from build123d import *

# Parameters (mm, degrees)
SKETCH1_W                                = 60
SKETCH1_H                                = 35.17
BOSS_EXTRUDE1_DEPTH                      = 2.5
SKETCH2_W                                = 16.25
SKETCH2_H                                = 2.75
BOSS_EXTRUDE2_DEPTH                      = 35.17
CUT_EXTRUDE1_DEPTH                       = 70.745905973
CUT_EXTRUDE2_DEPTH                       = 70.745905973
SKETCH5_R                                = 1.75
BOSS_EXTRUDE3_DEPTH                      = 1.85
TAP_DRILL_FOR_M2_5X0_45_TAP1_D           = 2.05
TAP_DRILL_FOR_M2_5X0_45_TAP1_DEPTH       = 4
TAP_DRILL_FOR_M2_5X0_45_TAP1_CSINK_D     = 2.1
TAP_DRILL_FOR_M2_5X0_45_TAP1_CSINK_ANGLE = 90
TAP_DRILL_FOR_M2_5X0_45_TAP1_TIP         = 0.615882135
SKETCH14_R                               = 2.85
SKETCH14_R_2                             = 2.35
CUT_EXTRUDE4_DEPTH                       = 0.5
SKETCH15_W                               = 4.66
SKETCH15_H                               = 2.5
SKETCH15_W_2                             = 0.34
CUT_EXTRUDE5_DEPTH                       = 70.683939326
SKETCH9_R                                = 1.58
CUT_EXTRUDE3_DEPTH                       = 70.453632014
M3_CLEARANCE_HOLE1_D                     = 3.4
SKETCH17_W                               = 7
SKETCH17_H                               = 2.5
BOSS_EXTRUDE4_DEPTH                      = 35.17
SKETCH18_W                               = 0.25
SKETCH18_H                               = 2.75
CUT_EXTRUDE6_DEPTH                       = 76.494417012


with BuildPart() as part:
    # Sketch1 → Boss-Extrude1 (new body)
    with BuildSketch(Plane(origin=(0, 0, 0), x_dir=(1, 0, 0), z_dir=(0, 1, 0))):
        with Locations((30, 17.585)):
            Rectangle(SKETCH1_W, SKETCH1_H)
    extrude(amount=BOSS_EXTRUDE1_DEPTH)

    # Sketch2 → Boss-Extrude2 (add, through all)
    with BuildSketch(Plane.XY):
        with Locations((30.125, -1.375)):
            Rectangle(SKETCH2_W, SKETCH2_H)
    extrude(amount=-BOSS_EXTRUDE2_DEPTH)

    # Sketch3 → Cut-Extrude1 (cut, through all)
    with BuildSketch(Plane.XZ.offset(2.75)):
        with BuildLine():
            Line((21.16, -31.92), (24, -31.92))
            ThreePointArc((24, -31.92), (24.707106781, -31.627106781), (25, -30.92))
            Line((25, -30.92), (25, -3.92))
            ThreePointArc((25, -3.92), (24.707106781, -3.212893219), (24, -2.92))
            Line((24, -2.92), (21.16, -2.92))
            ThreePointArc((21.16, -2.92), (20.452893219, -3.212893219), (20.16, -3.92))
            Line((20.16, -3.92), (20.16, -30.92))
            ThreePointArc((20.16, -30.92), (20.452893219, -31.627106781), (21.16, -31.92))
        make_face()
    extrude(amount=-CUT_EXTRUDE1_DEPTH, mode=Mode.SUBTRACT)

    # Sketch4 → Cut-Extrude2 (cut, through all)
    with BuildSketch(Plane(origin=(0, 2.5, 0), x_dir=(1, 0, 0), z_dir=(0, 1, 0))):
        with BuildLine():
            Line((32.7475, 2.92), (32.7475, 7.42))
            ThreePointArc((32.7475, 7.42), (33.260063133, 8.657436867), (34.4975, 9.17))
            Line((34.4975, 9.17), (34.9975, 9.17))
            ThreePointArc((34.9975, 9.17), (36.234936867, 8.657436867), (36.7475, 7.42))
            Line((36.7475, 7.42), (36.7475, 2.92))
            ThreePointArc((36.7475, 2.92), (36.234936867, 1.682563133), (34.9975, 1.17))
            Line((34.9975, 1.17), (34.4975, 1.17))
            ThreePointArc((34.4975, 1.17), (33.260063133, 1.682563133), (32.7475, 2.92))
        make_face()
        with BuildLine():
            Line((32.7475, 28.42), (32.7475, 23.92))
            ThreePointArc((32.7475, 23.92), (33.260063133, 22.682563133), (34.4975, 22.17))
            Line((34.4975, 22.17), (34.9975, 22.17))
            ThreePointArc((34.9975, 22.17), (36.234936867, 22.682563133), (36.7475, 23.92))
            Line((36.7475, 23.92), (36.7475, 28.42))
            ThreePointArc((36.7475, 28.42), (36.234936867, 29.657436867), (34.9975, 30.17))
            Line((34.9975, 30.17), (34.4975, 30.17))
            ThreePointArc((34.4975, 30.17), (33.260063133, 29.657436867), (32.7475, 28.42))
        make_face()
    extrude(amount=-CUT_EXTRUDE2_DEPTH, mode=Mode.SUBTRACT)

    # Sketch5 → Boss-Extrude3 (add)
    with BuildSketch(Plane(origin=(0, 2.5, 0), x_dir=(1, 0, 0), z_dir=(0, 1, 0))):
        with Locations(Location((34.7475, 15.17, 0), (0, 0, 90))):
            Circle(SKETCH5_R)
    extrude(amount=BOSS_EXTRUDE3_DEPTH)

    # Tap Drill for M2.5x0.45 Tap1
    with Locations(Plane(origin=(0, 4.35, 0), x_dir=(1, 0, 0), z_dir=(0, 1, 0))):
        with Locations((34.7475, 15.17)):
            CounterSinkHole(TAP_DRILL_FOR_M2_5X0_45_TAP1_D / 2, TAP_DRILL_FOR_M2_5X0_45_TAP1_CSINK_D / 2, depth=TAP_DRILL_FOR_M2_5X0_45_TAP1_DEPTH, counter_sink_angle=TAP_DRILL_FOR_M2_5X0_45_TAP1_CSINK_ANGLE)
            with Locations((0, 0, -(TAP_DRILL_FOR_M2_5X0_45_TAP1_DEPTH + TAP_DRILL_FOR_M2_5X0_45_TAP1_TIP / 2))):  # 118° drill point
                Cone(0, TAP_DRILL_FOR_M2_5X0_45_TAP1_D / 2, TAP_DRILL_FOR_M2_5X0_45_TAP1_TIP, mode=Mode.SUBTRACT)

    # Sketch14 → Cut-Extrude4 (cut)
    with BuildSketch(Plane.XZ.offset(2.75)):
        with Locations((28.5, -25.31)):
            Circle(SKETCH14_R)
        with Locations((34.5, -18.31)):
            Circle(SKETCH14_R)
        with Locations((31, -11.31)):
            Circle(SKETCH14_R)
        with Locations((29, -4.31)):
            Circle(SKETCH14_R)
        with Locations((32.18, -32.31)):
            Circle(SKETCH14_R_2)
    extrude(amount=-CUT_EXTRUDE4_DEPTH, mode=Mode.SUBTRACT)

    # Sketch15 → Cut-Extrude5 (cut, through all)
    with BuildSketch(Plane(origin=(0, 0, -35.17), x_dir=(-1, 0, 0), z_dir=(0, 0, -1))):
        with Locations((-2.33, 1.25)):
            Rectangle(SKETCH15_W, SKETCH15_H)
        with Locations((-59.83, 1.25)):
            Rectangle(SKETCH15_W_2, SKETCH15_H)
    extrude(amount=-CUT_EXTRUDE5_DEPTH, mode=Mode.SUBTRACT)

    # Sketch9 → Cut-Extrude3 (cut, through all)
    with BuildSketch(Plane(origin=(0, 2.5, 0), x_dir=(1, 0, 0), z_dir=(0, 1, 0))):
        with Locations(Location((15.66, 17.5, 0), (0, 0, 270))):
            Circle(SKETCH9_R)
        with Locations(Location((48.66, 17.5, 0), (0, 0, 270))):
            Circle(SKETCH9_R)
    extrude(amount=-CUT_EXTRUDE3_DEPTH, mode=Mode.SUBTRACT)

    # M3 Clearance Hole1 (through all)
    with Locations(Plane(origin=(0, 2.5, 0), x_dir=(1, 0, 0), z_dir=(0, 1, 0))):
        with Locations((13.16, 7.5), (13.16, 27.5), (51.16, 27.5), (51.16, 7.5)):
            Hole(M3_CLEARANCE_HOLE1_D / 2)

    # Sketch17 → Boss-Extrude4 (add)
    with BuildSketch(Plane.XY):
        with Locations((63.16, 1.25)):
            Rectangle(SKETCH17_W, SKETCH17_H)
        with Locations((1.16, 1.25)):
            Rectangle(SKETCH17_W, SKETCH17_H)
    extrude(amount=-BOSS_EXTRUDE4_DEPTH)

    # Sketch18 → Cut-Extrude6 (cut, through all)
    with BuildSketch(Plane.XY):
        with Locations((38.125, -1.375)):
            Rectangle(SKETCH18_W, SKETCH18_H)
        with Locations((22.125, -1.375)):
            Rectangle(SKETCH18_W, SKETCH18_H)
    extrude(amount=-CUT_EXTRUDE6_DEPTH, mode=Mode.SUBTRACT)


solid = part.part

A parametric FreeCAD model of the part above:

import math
import FreeCAD as App
import Part
import Sketcher
from FreeCAD import Vector

doc = App.newDocument("Part")
body = doc.addObject("PartDesign::Body", "Body")

sketch1 = body.newObject("Sketcher::SketchObject", "Sketch")
sketch1.AttachmentSupport = (doc.getObject("XZ_Plane"), [""])
sketch1.MapMode = "FlatFace"
sketch1.addGeometry([
    Part.LineSegment(Vector(0, -35.17, 0), Vector(0, 0, 0)),
    Part.LineSegment(Vector(0, 0, 0), Vector(60, 0, 0)),
    Part.LineSegment(Vector(60, 0, 0), Vector(60, -35.17, 0)),
    Part.LineSegment(Vector(60, -35.17, 0), Vector(0, -35.17, 0)),
], False)
sketch1.addConstraint([
    Sketcher.Constraint("Coincident", 0, 2, 1, 1),
    Sketcher.Constraint("Coincident", 1, 2, 2, 1),
    Sketcher.Constraint("Coincident", 2, 2, 3, 1),
    Sketcher.Constraint("Coincident", 3, 2, 0, 1),
    Sketcher.Constraint("Vertical", 0),
    Sketcher.Constraint("Horizontal", 1),
    Sketcher.Constraint("Vertical", 2),
    Sketcher.Constraint("Horizontal", 3),
    Sketcher.Constraint("Coincident", 0, 2, -1, 1),
    Sketcher.Constraint("DistanceX", 1, 1, 1, 2, 60.0),
    Sketcher.Constraint("DistanceY", 0, 1, 0, 2, 35.17),
])
pad1 = body.newObject("PartDesign::Pad", "Pad")
pad1.Profile = sketch1
pad1.Length = 2.5
pad1.Reversed = True

sketch2 = body.newObject("Sketcher::SketchObject", "Sketch001")
sketch2.AttachmentSupport = (doc.getObject("XY_Plane"), [""])
sketch2.MapMode = "FlatFace"
sketch2.addGeometry([
    Part.LineSegment(Vector(22, 0, 0), Vector(22, -2.75, 0)),
    Part.LineSegment(Vector(22, -2.75, 0), Vector(38.25, -2.75, 0)),
    Part.LineSegment(Vector(38.25, -2.75, 0), Vector(38.25, 0, 0)),
    Part.LineSegment(Vector(38.25, 0, 0), Vector(22, 0, 0)),
], False)
sketch2.addConstraint([
    Sketcher.Constraint("Coincident", 0, 2, 1, 1),
    Sketcher.Constraint("Coincident", 1, 2, 2, 1),
    Sketcher.Constraint("Coincident", 2, 2, 3, 1),
    Sketcher.Constraint("Coincident", 3, 2, 0, 1),
    Sketcher.Constraint("Vertical", 0),
    Sketcher.Constraint("Horizontal", 1),
    Sketcher.Constraint("Vertical", 2),
    Sketcher.Constraint("Horizontal", 3),
    Sketcher.Constraint("PointOnObject", 2, 2, -1),
    Sketcher.Constraint("DistanceX", -1, 1, 0, 2, 22.0),
    Sketcher.Constraint("DistanceX", 1, 1, 1, 2, 16.25),
    Sketcher.Constraint("DistanceY", 0, 2, 0, 1, 2.75),
])
pad2 = body.newObject("PartDesign::Pad", "Pad001")
pad2.Profile = sketch2
pad2.Length = 35.17
pad2.Reversed = True

sketch3 = body.newObject("Sketcher::SketchObject", "Sketch002")
sketch3.AttachmentSupport = (doc.getObject("XZ_Plane"), [""])
sketch3.MapMode = "FlatFace"
sketch3.AttachmentOffset = App.Placement(Vector(0, 0, 2.75), App.Rotation())
sketch3.addGeometry([
    Part.LineSegment(Vector(21.16, -31.92, 0), Vector(24, -31.92, 0)),
    Part.ArcOfCircle(Part.Circle(Vector(24, -30.92, 0), Vector(0, 0, 1), 1), math.radians(-90), math.radians(0)),
    Part.LineSegment(Vector(25, -30.92, 0), Vector(25, -3.92, 0)),
    Part.ArcOfCircle(Part.Circle(Vector(24, -3.92, 0), Vector(0, 0, 1), 1), math.radians(0), math.radians(90)),
    Part.LineSegment(Vector(24, -2.92, 0), Vector(21.16, -2.92, 0)),
    Part.ArcOfCircle(Part.Circle(Vector(21.16, -3.92, 0), Vector(0, 0, 1), 1), math.radians(90), math.radians(180)),
    Part.LineSegment(Vector(20.16, -3.92, 0), Vector(20.16, -30.92, 0)),
    Part.ArcOfCircle(Part.Circle(Vector(21.16, -30.92, 0), Vector(0, 0, 1), 1), math.radians(-180), math.radians(-90)),
], False)
sketch3.addConstraint([
    Sketcher.Constraint("Tangent", 0, 2, 1, 1),
    Sketcher.Constraint("Tangent", 1, 2, 2, 1),
    Sketcher.Constraint("Tangent", 2, 2, 3, 1),
    Sketcher.Constraint("Tangent", 3, 2, 4, 1),
    Sketcher.Constraint("Tangent", 4, 2, 5, 1),
    Sketcher.Constraint("Tangent", 5, 2, 6, 1),
    Sketcher.Constraint("Tangent", 6, 2, 7, 1),
    Sketcher.Constraint("Tangent", 7, 2, 0, 1),
    Sketcher.Constraint("Horizontal", 0),
    Sketcher.Constraint("Vertical", 2),
    Sketcher.Constraint("Horizontal", 4),
    Sketcher.Constraint("Vertical", 6),
    Sketcher.Constraint("Equal", 1, 3),
    Sketcher.Constraint("Equal", 3, 5),
    Sketcher.Constraint("Equal", 5, 7),
    Sketcher.Constraint("Radius", 1, 1.0),
    Sketcher.Constraint("DistanceY", 2, 1, 2, 2, 27.0),
    Sketcher.Constraint("DistanceX", -1, 1, 1, 3, 24.0),
    Sketcher.Constraint("DistanceX", 0, 1, 0, 2, 2.84),
    Sketcher.Constraint("DistanceY", 1, 3, -1, 1, 30.92),
])
pocket1 = body.newObject("PartDesign::Pocket", "Pocket")
pocket1.Profile = sketch3
pocket1.Type = "ThroughAll"

sketch4 = body.newObject("Sketcher::SketchObject", "Sketch003")
sketch4.AttachmentSupport = (doc.getObject("XZ_Plane"), [""])
sketch4.MapMode = "FlatFace"
sketch4.AttachmentOffset = App.Placement(Vector(0, 0, -2.5), App.Rotation())
sketch4.addGeometry([
    Part.LineSegment(Vector(32.7475, -7.42, 0), Vector(32.7475, -2.92, 0)),
    Part.ArcOfCircle(Part.Circle(Vector(34.4975, -2.92, 0), Vector(0, 0, 1), 1.75), math.radians(90), math.radians(180)),
    Part.LineSegment(Vector(34.4975, -1.17, 0), Vector(34.9975, -1.17, 0)),
    Part.ArcOfCircle(Part.Circle(Vector(34.9975, -2.92, 0), Vector(0, 0, 1), 1.75), math.radians(0), math.radians(90)),
    Part.LineSegment(Vector(36.7475, -2.92, 0), Vector(36.7475, -7.42, 0)),
    Part.ArcOfCircle(Part.Circle(Vector(34.9975, -7.42, 0), Vector(0, 0, 1), 1.75), math.radians(-90), math.radians(0)),
    Part.LineSegment(Vector(34.9975, -9.17, 0), Vector(34.4975, -9.17, 0)),
    Part.ArcOfCircle(Part.Circle(Vector(34.4975, -7.42, 0), Vector(0, 0, 1), 1.75), math.radians(180), math.radians(270)),
    Part.LineSegment(Vector(32.7475, -28.42, 0), Vector(32.7475, -23.92, 0)),
    Part.ArcOfCircle(Part.Circle(Vector(34.4975, -23.92, 0), Vector(0, 0, 1), 1.75), math.radians(90), math.radians(180)),
    Part.LineSegment(Vector(34.4975, -22.17, 0), Vector(34.9975, -22.17, 0)),
    Part.ArcOfCircle(Part.Circle(Vector(34.9975, -23.92, 0), Vector(0, 0, 1), 1.75), math.radians(0), math.radians(90)),
    Part.LineSegment(Vector(36.7475, -23.92, 0), Vector(36.7475, -28.42, 0)),
    Part.ArcOfCircle(Part.Circle(Vector(34.9975, -28.42, 0), Vector(0, 0, 1), 1.75), math.radians(-90), math.radians(0)),
    Part.LineSegment(Vector(34.9975, -30.17, 0), Vector(34.4975, -30.17, 0)),
    Part.ArcOfCircle(Part.Circle(Vector(34.4975, -28.42, 0), Vector(0, 0, 1), 1.75), math.radians(180), math.radians(270)),
], False)
sketch4.addConstraint([
    Sketcher.Constraint("Tangent", 0, 2, 1, 2),
    Sketcher.Constraint("Tangent", 1, 1, 2, 1),
    Sketcher.Constraint("Tangent", 2, 2, 3, 2),
    Sketcher.Constraint("Tangent", 3, 1, 4, 1),
    Sketcher.Constraint("Tangent", 4, 2, 5, 2),
    Sketcher.Constraint("Tangent", 5, 1, 6, 1),
    Sketcher.Constraint("Tangent", 6, 2, 7, 2),
    Sketcher.Constraint("Tangent", 7, 1, 0, 1),
    Sketcher.Constraint("Tangent", 8, 2, 9, 2),
    Sketcher.Constraint("Tangent", 9, 1, 10, 1),
    Sketcher.Constraint("Tangent", 10, 2, 11, 2),
    Sketcher.Constraint("Tangent", 11, 1, 12, 1),
    Sketcher.Constraint("Tangent", 12, 2, 13, 2),
    Sketcher.Constraint("Tangent", 13, 1, 14, 1),
    Sketcher.Constraint("Tangent", 14, 2, 15, 2),
    Sketcher.Constraint("Tangent", 15, 1, 8, 1),
    Sketcher.Constraint("Vertical", 0),
    Sketcher.Constraint("Horizontal", 2),
    Sketcher.Constraint("Vertical", 4),
    Sketcher.Constraint("Horizontal", 6),
    Sketcher.Constraint("Vertical", 8),
    Sketcher.Constraint("Horizontal", 10),
    Sketcher.Constraint("Vertical", 12),
    Sketcher.Constraint("Horizontal", 14),
    Sketcher.Constraint("Equal", 1, 3),
    Sketcher.Constraint("Equal", 3, 5),
    Sketcher.Constraint("Equal", 5, 7),
    Sketcher.Constraint("Equal", 7, 9),
    Sketcher.Constraint("Equal", 9, 11),
    Sketcher.Constraint("Equal", 11, 13),
    Sketcher.Constraint("Equal", 13, 15),
    Sketcher.Constraint("Vertical", 7, 3, 9, 3),
    Sketcher.Constraint("Vertical", 5, 3, 11, 3),
    Sketcher.Constraint("Equal", 4, 8),
    Sketcher.Constraint("Radius", 1, 1.75),
    Sketcher.Constraint("DistanceX", 2, 1, 2, 2, 0.5),
    Sketcher.Constraint("DistanceY", 0, 1, 0, 2, 4.5),
    Sketcher.Constraint("DistanceY", 9, 3, 1, 3, 21.0),
    Sketcher.Constraint("DistanceY", 1, 3, -1, 1, 2.92),
    Sketcher.Constraint("DistanceX", -1, 1, 1, 3, 34.4975),
])
pocket2 = body.newObject("PartDesign::Pocket", "Pocket001")
pocket2.Profile = sketch4
pocket2.Type = "ThroughAll"
pocket2.Reversed = True

sketch5 = body.newObject("Sketcher::SketchObject", "Sketch004")
sketch5.AttachmentSupport = (doc.getObject("XZ_Plane"), [""])
sketch5.MapMode = "FlatFace"
sketch5.AttachmentOffset = App.Placement(Vector(0, 0, -2.5), App.Rotation())
sketch5.addGeometry(Part.Circle(Vector(34.7475, -15.17, 0), Vector(0, 0, 1), 1.75), False)
sketch5.addConstraint([
    Sketcher.Constraint("Diameter", 0, 3.5),
    Sketcher.Constraint("DistanceY", 0, 3, -1, 1, 15.17),
    Sketcher.Constraint("DistanceX", -1, 1, 0, 3, 34.7475),
])
pad3 = body.newObject("PartDesign::Pad", "Pad002")
pad3.Profile = sketch5
pad3.Length = 1.85
pad3.Reversed = True

sketch6 = body.newObject("Sketcher::SketchObject", "Sketch005")
sketch6.AttachmentSupport = (doc.getObject("XZ_Plane"), [""])
sketch6.MapMode = "FlatFace"
sketch6.AttachmentOffset = App.Placement(Vector(0, 0, -4.35), App.Rotation())
sketch6.addGeometry(Part.Circle(Vector(34.7475, -15.17, 0), Vector(0, 0, 1), 1.025), False)
sketch6.addConstraint([
    Sketcher.Constraint("Diameter", 0, 2.05),
    Sketcher.Constraint("DistanceY", 0, 3, -1, 1, 15.17),
    Sketcher.Constraint("DistanceX", -1, 1, 0, 3, 34.7475),
])
doc.recompute()
hole = body.newObject("PartDesign::Hole", "Hole")
hole.Profile = sketch6
hole.ThreadType = "None"
hole.Diameter = 2.05
hole.DepthType = "Dimension"
hole.Depth = 4
hole.DrillPoint = "Angled"
hole.DrillPointAngle = 118
hole.HoleCutType = "Countersink"
hole.HoleCutDiameter = 2.1
hole.HoleCutCountersinkAngle = 90
hole.Reversed = True

sketch7 = body.newObject("Sketcher::SketchObject", "Sketch006")
sketch7.AttachmentSupport = (doc.getObject("XZ_Plane"), [""])
sketch7.MapMode = "FlatFace"
sketch7.AttachmentOffset = App.Placement(Vector(0, 0, 2.75), App.Rotation())
sketch7.addGeometry([
    Part.Circle(Vector(28.5, -25.31, 0), Vector(0, 0, 1), 2.85),
    Part.Circle(Vector(34.5, -18.31, 0), Vector(0, 0, 1), 2.85),
    Part.Circle(Vector(31, -11.31, 0), Vector(0, 0, 1), 2.85),
    Part.Circle(Vector(29, -4.31, 0), Vector(0, 0, 1), 2.85),
    Part.Circle(Vector(32.18, -32.31, 0), Vector(0, 0, 1), 2.35),
], False)
sketch7.addConstraint([
    Sketcher.Constraint("Equal", 0, 1),
    Sketcher.Constraint("Equal", 1, 2),
    Sketcher.Constraint("Equal", 2, 3),
    Sketcher.Constraint("Diameter", 0, 5.7),
    Sketcher.Constraint("Diameter", 4, 4.7),
    Sketcher.Constraint("DistanceX", -1, 1, 2, 3, 31.0),
    Sketcher.Constraint("DistanceX", -1, 1, 3, 3, 29.0),
    Sketcher.Constraint("DistanceX", 0, 3, 1, 3, 6.0),
    Sketcher.Constraint("DistanceY", 0, 3, 1, 3, 7.0),
    Sketcher.Constraint("DistanceY", 1, 3, 2, 3, 7.0),
    Sketcher.Constraint("DistanceY", 2, 3, 3, 3, 7.0),
    Sketcher.Constraint("DistanceY", 4, 3, 0, 3, 7.0),
    Sketcher.Constraint("DistanceX", -1, 1, 0, 3, 28.5),
    Sketcher.Constraint("DistanceY", 0, 3, -1, 1, 25.31),
    Sketcher.Constraint("DistanceX", -1, 1, 4, 3, 32.18),
])
pocket3 = body.newObject("PartDesign::Pocket", "Pocket002")
pocket3.Profile = sketch7
pocket3.Length = 0.5

sketch8 = body.newObject("Sketcher::SketchObject", "Sketch007")
sketch8.AttachmentSupport = (doc.getObject("XY_Plane"), [""])
sketch8.MapMode = "FlatFace"
sketch8.AttachmentOffset = App.Placement(Vector(0, 0, -35.17), App.Rotation())
sketch8.addGeometry([
    Part.LineSegment(Vector(4.66, 2.5, 0), Vector(4.66, 0, 0)),
    Part.LineSegment(Vector(4.66, 0, 0), Vector(0, 0, 0)),
    Part.LineSegment(Vector(0, 0, 0), Vector(0, 2.5, 0)),
    Part.LineSegment(Vector(0, 2.5, 0), Vector(4.66, 2.5, 0)),
    Part.LineSegment(Vector(60, 2.5, 0), Vector(60, 0, 0)),
    Part.LineSegment(Vector(60, 0, 0), Vector(59.66, 0, 0)),
    Part.LineSegment(Vector(59.66, 0, 0), Vector(59.66, 2.5, 0)),
    Part.LineSegment(Vector(59.66, 2.5, 0), Vector(60, 2.5, 0)),
], False)
sketch8.addConstraint([
    Sketcher.Constraint("Coincident", 0, 2, 1, 1),
    Sketcher.Constraint("Coincident", 1, 2, 2, 1),
    Sketcher.Constraint("Coincident", 2, 2, 3, 1),
    Sketcher.Constraint("Coincident", 3, 2, 0, 1),
    Sketcher.Constraint("Coincident", 4, 2, 5, 1),
    Sketcher.Constraint("Coincident", 5, 2, 6, 1),
    Sketcher.Constraint("Coincident", 6, 2, 7, 1),
    Sketcher.Constraint("Coincident", 7, 2, 4, 1),
    Sketcher.Constraint("Vertical", 0),
    Sketcher.Constraint("Horizontal", 1),
    Sketcher.Constraint("Vertical", 2),
    Sketcher.Constraint("Horizontal", 3),
    Sketcher.Constraint("Vertical", 4),
    Sketcher.Constraint("Horizontal", 5),
    Sketcher.Constraint("Vertical", 6),
    Sketcher.Constraint("Horizontal", 7),
    Sketcher.Constraint("Coincident", 1, 2, -1, 1),
    Sketcher.Constraint("PointOnObject", 4, 2, -1),
    Sketcher.Constraint("Horizontal", 3, 2, 6, 2),
    Sketcher.Constraint("DistanceY", 0, 2, 0, 1, 2.5),
    Sketcher.Constraint("DistanceX", -1, 1, 4, 2, 60.0),
    Sketcher.Constraint("DistanceX", 0, 2, 5, 2, 55.0),
    Sketcher.Constraint("DistanceX", 1, 2, 1, 1, 4.66),
])
pocket4 = body.newObject("PartDesign::Pocket", "Pocket003")
pocket4.Profile = sketch8
pocket4.Type = "ThroughAll"
pocket4.Reversed = True

sketch9 = body.newObject("Sketcher::SketchObject", "Sketch008")
sketch9.AttachmentSupport = (doc.getObject("XZ_Plane"), [""])
sketch9.MapMode = "FlatFace"
sketch9.AttachmentOffset = App.Placement(Vector(0, 0, -2.5), App.Rotation())
sketch9.addGeometry([
    Part.Circle(Vector(15.66, -17.5, 0), Vector(0, 0, 1), 1.58),
    Part.Circle(Vector(48.66, -17.5, 0), Vector(0, 0, 1), 1.58),
], False)
sketch9.addConstraint([
    Sketcher.Constraint("Equal", 0, 1),
    Sketcher.Constraint("Horizontal", 0, 3, 1, 3),
    Sketcher.Constraint("Diameter", 0, 3.16),
    Sketcher.Constraint("DistanceX", 0, 3, 1, 3, 33.0),
    Sketcher.Constraint("DistanceY", 0, 3, -1, 1, 17.5),
    Sketcher.Constraint("DistanceX", -1, 1, 0, 3, 15.66),
])
pocket5 = body.newObject("PartDesign::Pocket", "Pocket004")
pocket5.Profile = sketch9
pocket5.Type = "ThroughAll"
pocket5.Reversed = True

sketch10 = body.newObject("Sketcher::SketchObject", "Sketch009")
sketch10.AttachmentSupport = (doc.getObject("XZ_Plane"), [""])
sketch10.MapMode = "FlatFace"
sketch10.AttachmentOffset = App.Placement(Vector(0, 0, -2.5), App.Rotation())
sketch10.addGeometry([
    Part.Circle(Vector(13.16, -7.5, 0), Vector(0, 0, 1), 1.7),
    Part.Circle(Vector(13.16, -27.5, 0), Vector(0, 0, 1), 1.7),
    Part.Circle(Vector(51.16, -27.5, 0), Vector(0, 0, 1), 1.7),
    Part.Circle(Vector(51.16, -7.5, 0), Vector(0, 0, 1), 1.7),
], False)
sketch10.addConstraint([
    Sketcher.Constraint("Equal", 0, 1),
    Sketcher.Constraint("Equal", 1, 2),
    Sketcher.Constraint("Equal", 2, 3),
    Sketcher.Constraint("Horizontal", 1, 3, 2, 3),
    Sketcher.Constraint("Horizontal", 0, 3, 3, 3),
    Sketcher.Constraint("Vertical", 0, 3, 1, 3),
    Sketcher.Constraint("Vertical", 2, 3, 3, 3),
    Sketcher.Constraint("Diameter", 0, 3.4),
    Sketcher.Constraint("DistanceY", 1, 3, 0, 3, 20.0),
    Sketcher.Constraint("DistanceX", 1, 3, 2, 3, 38.0),
    Sketcher.Constraint("DistanceY", 0, 3, -1, 1, 7.5),
    Sketcher.Constraint("DistanceX", -1, 1, 0, 3, 13.16),
])
doc.recompute()
hole2 = body.newObject("PartDesign::Hole", "Hole001")
hole2.Profile = sketch10
hole2.ThreadType = "None"
hole2.Diameter = 3.4
hole2.DepthType = "ThroughAll"
hole2.Reversed = True

sketch11 = body.newObject("Sketcher::SketchObject", "Sketch010")
sketch11.AttachmentSupport = (doc.getObject("XY_Plane"), [""])
sketch11.MapMode = "FlatFace"
sketch11.addGeometry([
    Part.LineSegment(Vector(59.66, 2.5, 0), Vector(59.66, 0, 0)),
    Part.LineSegment(Vector(59.66, 0, 0), Vector(66.66, 0, 0)),
    Part.LineSegment(Vector(66.66, 0, 0), Vector(66.66, 2.5, 0)),
    Part.LineSegment(Vector(66.66, 2.5, 0), Vector(59.66, 2.5, 0)),
    Part.LineSegment(Vector(-2.34, 2.5, 0), Vector(-2.34, 0, 0)),
    Part.LineSegment(Vector(-2.34, 0, 0), Vector(4.66, 0, 0)),
    Part.LineSegment(Vector(4.66, 0, 0), Vector(4.66, 2.5, 0)),
    Part.LineSegment(Vector(4.66, 2.5, 0), Vector(-2.34, 2.5, 0)),
], False)
sketch11.addConstraint([
    Sketcher.Constraint("Coincident", 0, 2, 1, 1),
    Sketcher.Constraint("Coincident", 1, 2, 2, 1),
    Sketcher.Constraint("Coincident", 2, 2, 3, 1),
    Sketcher.Constraint("Coincident", 3, 2, 0, 1),
    Sketcher.Constraint("Coincident", 4, 2, 5, 1),
    Sketcher.Constraint("Coincident", 5, 2, 6, 1),
    Sketcher.Constraint("Coincident", 6, 2, 7, 1),
    Sketcher.Constraint("Coincident", 7, 2, 4, 1),
    Sketcher.Constraint("Vertical", 0),
    Sketcher.Constraint("Horizontal", 1),
    Sketcher.Constraint("Vertical", 2),
    Sketcher.Constraint("Horizontal", 3),
    Sketcher.Constraint("Vertical", 4),
    Sketcher.Constraint("Horizontal", 5),
    Sketcher.Constraint("Vertical", 6),
    Sketcher.Constraint("Horizontal", 7),
    Sketcher.Constraint("PointOnObject", 0, 2, -1),
    Sketcher.Constraint("PointOnObject", 4, 2, -1),
    Sketcher.Constraint("Horizontal", 3, 2, 6, 2),
    Sketcher.Constraint("Equal", 3, 5),
    Sketcher.Constraint("DistanceX", 1, 1, 1, 2, 7.0),
    Sketcher.Constraint("DistanceY", 0, 2, 0, 1, 2.5),
    Sketcher.Constraint("DistanceX", 4, 2, 0, 2, 62.0),
    Sketcher.Constraint("DistanceX", -1, 1, 0, 2, 59.66),
])
pad4 = body.newObject("PartDesign::Pad", "Pad003")
pad4.Profile = sketch11
pad4.Length = 35.17
pad4.Reversed = True

sketch12 = body.newObject("Sketcher::SketchObject", "Sketch011")
sketch12.AttachmentSupport = (doc.getObject("XY_Plane"), [""])
sketch12.MapMode = "FlatFace"
sketch12.addGeometry([
    Part.LineSegment(Vector(38, 0, 0), Vector(38, -2.75, 0)),
    Part.LineSegment(Vector(38, -2.75, 0), Vector(38.25, -2.75, 0)),
    Part.LineSegment(Vector(38.25, -2.75, 0), Vector(38.25, 0, 0)),
    Part.LineSegment(Vector(38.25, 0, 0), Vector(38, 0, 0)),
    Part.LineSegment(Vector(22, 0, 0), Vector(22, -2.75, 0)),
    Part.LineSegment(Vector(22, -2.75, 0), Vector(22.25, -2.75, 0)),
    Part.LineSegment(Vector(22.25, -2.75, 0), Vector(22.25, 0, 0)),
    Part.LineSegment(Vector(22.25, 0, 0), Vector(22, 0, 0)),
], False)
sketch12.addConstraint([
    Sketcher.Constraint("Coincident", 0, 2, 1, 1),
    Sketcher.Constraint("Coincident", 1, 2, 2, 1),
    Sketcher.Constraint("Coincident", 2, 2, 3, 1),
    Sketcher.Constraint("Coincident", 3, 2, 0, 1),
    Sketcher.Constraint("Coincident", 4, 2, 5, 1),
    Sketcher.Constraint("Coincident", 5, 2, 6, 1),
    Sketcher.Constraint("Coincident", 6, 2, 7, 1),
    Sketcher.Constraint("Coincident", 7, 2, 4, 1),
    Sketcher.Constraint("Vertical", 0),
    Sketcher.Constraint("Horizontal", 1),
    Sketcher.Constraint("Vertical", 2),
    Sketcher.Constraint("Horizontal", 3),
    Sketcher.Constraint("Vertical", 4),
    Sketcher.Constraint("Horizontal", 5),
    Sketcher.Constraint("Vertical", 6),
    Sketcher.Constraint("Horizontal", 7),
    Sketcher.Constraint("PointOnObject", 2, 2, -1),
    Sketcher.Constraint("PointOnObject", 6, 2, -1),
    Sketcher.Constraint("Horizontal", 1, 2, 4, 2),
    Sketcher.Constraint("Equal", 3, 5),
    Sketcher.Constraint("DistanceX", -1, 1, 0, 2, 38.0),
    Sketcher.Constraint("DistanceX", -1, 1, 4, 2, 22.0),
    Sketcher.Constraint("DistanceX", 1, 1, 1, 2, 0.25),
    Sketcher.Constraint("DistanceY", 0, 2, 0, 1, 2.75),
])
pocket6 = body.newObject("PartDesign::Pocket", "Pocket005")
pocket6.Profile = sketch12
pocket6.Type = "ThroughAll"

doc.recompute()
